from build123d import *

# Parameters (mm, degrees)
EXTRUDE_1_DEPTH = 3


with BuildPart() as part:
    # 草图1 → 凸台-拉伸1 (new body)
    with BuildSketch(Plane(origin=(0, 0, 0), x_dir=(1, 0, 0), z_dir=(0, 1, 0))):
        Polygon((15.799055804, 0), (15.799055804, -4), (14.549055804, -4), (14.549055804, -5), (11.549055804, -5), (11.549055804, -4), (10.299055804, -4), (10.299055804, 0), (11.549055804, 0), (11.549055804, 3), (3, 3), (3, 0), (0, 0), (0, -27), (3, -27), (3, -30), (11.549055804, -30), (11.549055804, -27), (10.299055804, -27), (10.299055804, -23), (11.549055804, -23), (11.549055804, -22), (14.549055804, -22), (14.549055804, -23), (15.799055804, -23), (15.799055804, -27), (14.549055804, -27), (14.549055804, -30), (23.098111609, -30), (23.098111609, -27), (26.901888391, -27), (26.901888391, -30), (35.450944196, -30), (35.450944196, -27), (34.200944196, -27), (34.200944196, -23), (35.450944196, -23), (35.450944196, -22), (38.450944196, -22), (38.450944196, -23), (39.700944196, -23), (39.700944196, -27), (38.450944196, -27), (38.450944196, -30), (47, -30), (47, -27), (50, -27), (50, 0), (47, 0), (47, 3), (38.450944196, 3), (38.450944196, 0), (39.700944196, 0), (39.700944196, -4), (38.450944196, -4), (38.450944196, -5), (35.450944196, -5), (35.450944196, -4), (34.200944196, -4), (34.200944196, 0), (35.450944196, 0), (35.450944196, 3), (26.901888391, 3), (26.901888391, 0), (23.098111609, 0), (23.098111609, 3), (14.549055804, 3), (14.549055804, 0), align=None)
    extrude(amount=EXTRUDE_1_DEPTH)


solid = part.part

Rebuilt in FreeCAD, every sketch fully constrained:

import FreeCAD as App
import Part
import Sketcher
from FreeCAD import Vector
Q = App.Units.Quantity

doc = App.newDocument("Part")
body = doc.addObject("PartDesign::Body", "Body")

# Sketch on XZ plane
sketch1 = doc.addObject("Sketcher::SketchObject", "Sketch")
body.addObject(sketch1)
sketch1.AttachmentSupport = (doc.XZ_Plane, [""])
sketch1.MapMode = "FlatFace"
sketch1.addGeometry([
    Part.LineSegment(Vector(15.8, 0, 0), Vector(15.8, 4, 0)),  # 0
    Part.LineSegment(Vector(15.8, 4, 0), Vector(14.5, 4, 0)),  # 1
    Part.LineSegment(Vector(14.5, 4, 0), Vector(14.5, 5, 0)),  # 2
    Part.LineSegment(Vector(14.5, 5, 0), Vector(11.5, 5, 0)),  # 3
    Part.LineSegment(Vector(11.5, 5, 0), Vector(11.5, 4, 0)),  # 4
    Part.LineSegment(Vector(11.5, 4, 0), Vector(10.3, 4, 0)),  # 5
    Part.LineSegment(Vector(10.3, 4, 0), Vector(10.3, 0, 0)),  # 6
    Part.LineSegment(Vector(10.3, 0, 0), Vector(11.5, 0, 0)),  # 7
    Part.LineSegment(Vector(11.5, 0, 0), Vector(11.5, -3, 0)),  # 8
    Part.LineSegment(Vector(11.5, -3, 0), Vector(3, -3, 0)),  # 9
    Part.LineSegment(Vector(3, -3, 0), Vector(3, 0, 0)),  # 10
    Part.LineSegment(Vector(3, 0, 0), Vector(0, 0, 0)),  # 11
    Part.LineSegment(Vector(0, 0, 0), Vector(0, 27, 0)),  # 12
    Part.LineSegment(Vector(0, 27, 0), Vector(3, 27, 0)),  # 13
    Part.LineSegment(Vector(3, 27, 0), Vector(3, 30, 0)),  # 14
    Part.LineSegment(Vector(3, 30, 0), Vector(11.5, 30, 0)),  # 15
    Part.LineSegment(Vector(11.5, 30, 0), Vector(11.5, 27, 0)),  # 16
    Part.LineSegment(Vector(11.5, 27, 0), Vector(10.3, 27, 0)),  # 17
    Part.LineSegment(Vector(10.3, 27, 0), Vector(10.3, 23, 0)),  # 18
    Part.LineSegment(Vector(10.3, 23, 0), Vector(11.5, 23, 0)),  # 19
    Part.LineSegment(Vector(11.5, 23, 0), Vector(11.5, 22, 0)),  # 20
    Part.LineSegment(Vector(11.5, 22, 0), Vector(14.5, 22, 0)),  # 21
    Part.LineSegment(Vector(14.5, 22, 0), Vector(14.5, 23, 0)),  # 22
    Part.LineSegment(Vector(14.5, 23, 0), Vector(15.8, 23, 0)),  # 23
    Part.LineSegment(Vector(15.8, 23, 0), Vector(15.8, 27, 0)),  # 24
    Part.LineSegment(Vector(15.8, 27, 0), Vector(14.5, 27, 0)),  # 25
    Part.LineSegment(Vector(14.5, 27, 0), Vector(14.5, 30, 0)),  # 26
    Part.LineSegment(Vector(14.5, 30, 0), Vector(23.1, 30, 0)),  # 27
    Part.LineSegment(Vector(23.1, 30, 0), Vector(23.1, 27, 0)),  # 28
    Part.LineSegment(Vector(23.1, 27, 0), Vector(26.9, 27, 0)),  # 29
    Part.LineSegment(Vector(26.9, 27, 0), Vector(26.9, 30, 0)),  # 30
    Part.LineSegment(Vector(26.9, 30, 0), Vector(35.5, 30, 0)),  # 31
    Part.LineSegment(Vector(35.5, 30, 0), Vector(35.5, 27, 0)),  # 32
    Part.LineSegment(Vector(35.5, 27, 0), Vector(34.2, 27, 0)),  # 33
    Part.LineSegment(Vector(34.2, 27, 0), Vector(34.2, 23, 0)),  # 34
    Part.LineSegment(Vector(34.2, 23, 0), Vector(35.5, 23, 0)),  # 35
    Part.LineSegment(Vector(35.5, 23, 0), Vector(35.5, 22, 0)),  # 36
    Part.LineSegment(Vector(35.5, 22, 0), Vector(38.5, 22, 0)),  # 37
    Part.LineSegment(Vector(38.5, 22, 0), Vector(38.5, 23, 0)),  # 38
    Part.LineSegment(Vector(38.5, 23, 0), Vector(39.7, 23, 0)),  # 39
    Part.LineSegment(Vector(39.7, 23, 0), Vector(39.7, 27, 0)),  # 40
    Part.LineSegment(Vector(39.7, 27, 0), Vector(38.5, 27, 0)),  # 41
    Part.LineSegment(Vector(38.5, 27, 0), Vector(38.5, 30, 0)),  # 42
    Part.LineSegment(Vector(38.5, 30, 0), Vector(47, 30, 0)),  # 43
    Part.LineSegment(Vector(47, 30, 0), Vector(47, 27, 0)),  # 44
    Part.LineSegment(Vector(47, 27, 0), Vector(50, 27, 0)),  # 45
    Part.LineSegment(Vector(50, 27, 0), Vector(50, 0, 0)),  # 46
    Part.LineSegment(Vector(50, 0, 0), Vector(47, 0, 0)),  # 47
    Part.LineSegment(Vector(47, 0, 0), Vector(47, -3, 0)),  # 48
    Part.LineSegment(Vector(47, -3, 0), Vector(38.5, -3, 0)),  # 49
    Part.LineSegment(Vector(38.5, -3, 0), Vector(38.5, 0, 0)),  # 50
    Part.LineSegment(Vector(38.5, 0, 0), Vector(39.7, 0, 0)),  # 51
    Part.LineSegment(Vector(39.7, 0, 0), Vector(39.7, 4, 0)),  # 52
    Part.LineSegment(Vector(39.7, 4, 0), Vector(38.5, 4, 0)),  # 53
    Part.LineSegment(Vector(38.5, 4, 0), Vector(38.5, 5, 0)),  # 54
    Part.LineSegment(Vector(38.5, 5, 0), Vector(35.5, 5, 0)),  # 55
    Part.LineSegment(Vector(35.5, 5, 0), Vector(35.5, 4, 0)),  # 56
    Part.LineSegment(Vector(35.5, 4, 0), Vector(34.2, 4, 0)),  # 57
    Part.LineSegment(Vector(34.2, 4, 0), Vector(34.2, 0, 0)),  # 58
    Part.LineSegment(Vector(34.2, 0, 0), Vector(35.5, 0, 0)),  # 59
    Part.LineSegment(Vector(35.5, 0, 0), Vector(35.5, -3, 0)),  # 60
    Part.LineSegment(Vector(35.5, -3, 0), Vector(26.9, -3, 0)),  # 61
    Part.LineSegment(Vector(26.9, -3, 0), Vector(26.9, 0, 0)),  # 62
    Part.LineSegment(Vector(26.9, 0, 0), Vector(23.1, 0, 0)),  # 63
    Part.LineSegment(Vector(23.1, 0, 0), Vector(23.1, -3, 0)),  # 64
    Part.LineSegment(Vector(23.1, -3, 0), Vector(14.5, -3, 0)),  # 65
    Part.LineSegment(Vector(14.5, -3, 0), Vector(14.5, 0, 0)),  # 66
    Part.LineSegment(Vector(14.5, 0, 0), Vector(15.8, 0, 0)),  # 67
], False)
sketch1.addConstraint([
    Sketcher.Constraint("Coincident", 0, 2, 1, 1),
    Sketcher.Constraint("Coincident", 1, 2, 2, 1),
    Sketcher.Constraint("Coincident", 2, 2, 3, 1),
    Sketcher.Constraint("Coincident", 3, 2, 4, 1),
    Sketcher.Constraint("Coincident", 4, 2, 5, 1),
    Sketcher.Constraint("Coincident", 5, 2, 6, 1),
    Sketcher.Constraint("Coincident", 6, 2, 7, 1),
    Sketcher.Constraint("Coincident", 7, 2, 8, 1),
    Sketcher.Constraint("Coincident", 8, 2, 9, 1),
    Sketcher.Constraint("Coincident", 9, 2, 10, 1),
    Sketcher.Constraint("Coincident", 10, 2, 11, 1),
    Sketcher.Constraint("Coincident", 11, 2, 12, 1),
    Sketcher.Constraint("Coincident", 12, 2, 13, 1),
    Sketcher.Constraint("Coincident", 13, 2, 14, 1),
    Sketcher.Constraint("Coincident", 14, 2, 15, 1),
    Sketcher.Constraint("Coincident", 15, 2, 16, 1),
    Sketcher.Constraint("Coincident", 16, 2, 17, 1),
    Sketcher.Constraint("Coincident", 17, 2, 18, 1),
    Sketcher.Constraint("Coincident", 18, 2, 19, 1),
    Sketcher.Constraint("Coincident", 19, 2, 20, 1),
    Sketcher.Constraint("Coincident", 20, 2, 21, 1),
    Sketcher.Constraint("Coincident", 21, 2, 22, 1),
    Sketcher.Constraint("Coincident", 22, 2, 23, 1),
    Sketcher.Constraint("Coincident", 23, 2, 24, 1),
    Sketcher.Constraint("Coincident", 24, 2, 25, 1),
    Sketcher.Constraint("Coincident", 25, 2, 26, 1),
    Sketcher.Constraint("Coincident", 26, 2, 27, 1),
    Sketcher.Constraint("Coincident", 27, 2, 28, 1),
    Sketcher.Constraint("Coincident", 28, 2, 29, 1),
    Sketcher.Constraint("Coincident", 29, 2, 30, 1),
    Sketcher.Constraint("Coincident", 30, 2, 31, 1),
    Sketcher.Constraint("Coincident", 31, 2, 32, 1),
    Sketcher.Constraint("Coincident", 32, 2, 33, 1),
    Sketcher.Constraint("Coincident", 33, 2, 34, 1),
    Sketcher.Constraint("Coincident", 34, 2, 35, 1),
    Sketcher.Constraint("Coincident", 35, 2, 36, 1),
    Sketcher.Constraint("Coincident", 36, 2, 37, 1),
    Sketcher.Constraint("Coincident", 37, 2, 38, 1),
    Sketcher.Constraint("Coincident", 38, 2, 39, 1),
    Sketcher.Constraint("Coincident", 39, 2, 40, 1),
    Sketcher.Constraint("Coincident", 40, 2, 41, 1),
    Sketcher.Constraint("Coincident", 41, 2, 42, 1),
    Sketcher.Constraint("Coincident", 42, 2, 43, 1),
    Sketcher.Constraint("Coincident", 43, 2, 44, 1),
    Sketcher.Constraint("Coincident", 44, 2, 45, 1),
    Sketcher.Constraint("Coincident", 45, 2, 46, 1),
    Sketcher.Constraint("Coincident", 46, 2, 47, 1),
    Sketcher.Constraint("Coincident", 47, 2, 48, 1),
    Sketcher.Constraint("Coincident", 48, 2, 49, 1),
    Sketcher.Constraint("Coincident", 49, 2, 50, 1),
    Sketcher.Constraint("Coincident", 50, 2, 51, 1),
    Sketcher.Constraint("Coincident", 51, 2, 52, 1),
    Sketcher.Constraint("Coincident", 52, 2, 53, 1),
    Sketcher.Constraint("Coincident", 53, 2, 54, 1),
    Sketcher.Constraint("Coincident", 54, 2, 55, 1),
    Sketcher.Constraint("Coincident", 55, 2, 56, 1),
    Sketcher.Constraint("Coincident", 56, 2, 57, 1),
    Sketcher.Constraint("Coincident", 57, 2, 58, 1),
    Sketcher.Constraint("Coincident", 58, 2, 59, 1),
    Sketcher.Constraint("Coincident", 59, 2, 60, 1),
    Sketcher.Constraint("Coincident", 60, 2, 61, 1),
    Sketcher.Constraint("Coincident", 61, 2, 62, 1),
    Sketcher.Constraint("Coincident", 62, 2, 63, 1),
    Sketcher.Constraint("Coincident", 63, 2, 64, 1),
    Sketcher.Constraint("Coincident", 64, 2, 65, 1),
    Sketcher.Constraint("Coincident", 65, 2, 66, 1),
    Sketcher.Constraint("Coincident", 66, 2, 67, 1),
    Sketcher.Constraint("Coincident", 67, 2, 0, 1),
    Sketcher.Constraint("Vertical", 0),
    Sketcher.Constraint("Horizontal", 1),
    Sketcher.Constraint("Vertical", 2),
    Sketcher.Constraint("Horizontal", 3),
    Sketcher.Constraint("Vertical", 4),
    Sketcher.Constraint("Horizontal", 5),
    Sketcher.Constraint("Vertical", 6),
    Sketcher.Constraint("Horizontal", 7),
    Sketcher.Constraint("Vertical", 8),
    Sketcher.Constraint("Horizontal", 9),
    Sketcher.Constraint("Vertical", 10),
    Sketcher.Constraint("Horizontal", 11),
    Sketcher.Constraint("Vertical", 12),
    Sketcher.Constraint("Horizontal", 13),
    Sketcher.Constraint("Vertical", 14),
    Sketcher.Constraint("Horizontal", 15),
    Sketcher.Constraint("Vertical", 16),
    Sketcher.Constraint("Horizontal", 17),
    Sketcher.Constraint("Vertical", 18),
    Sketcher.Constraint("Horizontal", 19),
    Sketcher.Constraint("Vertical", 20),
    Sketcher.Constraint("Horizontal", 21),
    Sketcher.Constraint("Vertical", 22),
    Sketcher.Constraint("Horizontal", 23),
    Sketcher.Constraint("Vertical", 24),
    Sketcher.Constraint("Horizontal", 25),
    Sketcher.Constraint("Vertical", 26),
    Sketcher.Constraint("Horizontal", 27),
    Sketcher.Constraint("Vertical", 28),
    Sketcher.Constraint("Horizontal", 29),
    Sketcher.Constraint("Vertical", 30),
    Sketcher.Constraint("Horizontal", 31),
    Sketcher.Constraint("Vertical", 32),
    Sketcher.Constraint("Horizontal", 33),
    Sketcher.Constraint("Vertical", 34),
    Sketcher.Constraint("Horizontal", 35),
    Sketcher.Constraint("Vertical", 36),
    Sketcher.Constraint("Horizontal", 37),
    Sketcher.Constraint("Vertical", 38),
    Sketcher.Constraint("Horizontal", 39),
    Sketcher.Constraint("Vertical", 40),
    Sketcher.Constraint("Horizontal", 41),
    Sketcher.Constraint("Vertical", 42),
    Sketcher.Constraint("Horizontal", 43),
    Sketcher.Constraint("Vertical", 44),
    Sketcher.Constraint("Horizontal", 45),
    Sketcher.Constraint("Vertical", 46),
    Sketcher.Constraint("Horizontal", 47),
    Sketcher.Constraint("Vertical", 48),
    Sketcher.Constraint("Horizontal", 49),
    Sketcher.Constraint("Vertical", 50),
    Sketcher.Constraint("Horizontal", 51),
    Sketcher.Constraint("Vertical", 52),
    Sketcher.Constraint("Horizontal", 53),
    Sketcher.Constraint("Vertical", 54),
    Sketcher.Constraint("Horizontal", 55),
    Sketcher.Constraint("Vertical", 56),
    Sketcher.Constraint("Horizontal", 57),
    Sketcher.Constraint("Vertical", 58),
    Sketcher.Constraint("Horizontal", 59),
    Sketcher.Constraint("Vertical", 60),
    Sketcher.Constraint("Horizontal", 61),
    Sketcher.Constraint("Vertical", 62),
    Sketcher.Constraint("Horizontal", 63),
    Sketcher.Constraint("Vertical", 64),
    Sketcher.Constraint("Horizontal", 65),
    Sketcher.Constraint("Vertical", 66),
    Sketcher.Constraint("Horizontal", 67),
    Sketcher.Constraint("Coincident", 11, 2, -1, 1),
    Sketcher.Constraint("PointOnObject", 6, 2, -1),
    Sketcher.Constraint("PointOnObject", 46, 2, -1),
    Sketcher.Constraint("PointOnObject", 50, 2, -1),
    Sketcher.Constraint("PointOnObject", 58, 2, -1),
    Sketcher.Constraint("PointOnObject", 62, 2, -1),
    Sketcher.Constraint("PointOnObject", 66, 2, -1),
    Sketcher.Constraint("Horizontal", 1, 2, 4, 2),
    Sketcher.Constraint("Horizontal", 13, 2, 16, 2),
    Sketcher.Constraint("Horizontal", 19, 2, 22, 2),
    Sketcher.Constraint("Horizontal", 17, 2, 24, 2),
    Sketcher.Constraint("Horizontal", 15, 2, 26, 2),
    Sketcher.Constraint("Horizontal", 25, 2, 28, 2),
    Sketcher.Constraint("Horizontal", 27, 2, 30, 2),
    Sketcher.Constraint("Horizontal", 29, 2, 32, 2),
    Sketcher.Constraint("Horizontal", 23, 2, 34, 2),
    Sketcher.Constraint("Horizontal", 21, 2, 36, 2),
    Sketcher.Constraint("Horizontal", 35, 2, 38, 2),
    Sketcher.Constraint("Horizontal", 33, 2, 40, 2),
    Sketcher.Constraint("Horizontal", 31, 2, 42, 2),
    Sketcher.Constraint("Horizontal", 41, 2, 44, 2),
    Sketcher.Constraint("Horizontal", 9, 2, 48, 2),
    Sketcher.Constraint("Horizontal", 5, 2, 52, 2),
    Sketcher.Constraint("Horizontal", 3, 2, 54, 2),
    Sketcher.Constraint("Horizontal", 53, 2, 56, 2),
    Sketcher.Constraint("Horizontal", 49, 2, 60, 2),
    Sketcher.Constraint("Horizontal", 61, 2, 64, 2),
    Sketcher.Constraint("Vertical", 4, 2, 7, 2),
    Sketcher.Constraint("Vertical", 10, 2, 13, 2),
    Sketcher.Constraint("Vertical", 8, 2, 15, 2),
    Sketcher.Constraint("Vertical", 6, 2, 17, 2),
    Sketcher.Constraint("Vertical", 16, 2, 19, 2),
    Sketcher.Constraint("Vertical", 2, 2, 21, 2),
    Sketcher.Constraint("Vertical", 0, 2, 23, 2),
    Sketcher.Constraint("Vertical", 22, 2, 25, 2),
    Sketcher.Constraint("Vertical", 32, 2, 35, 2),
    Sketcher.Constraint("Vertical", 38, 2, 41, 2),
    Sketcher.Constraint("Vertical", 44, 2, 47, 2),
    Sketcher.Constraint("Vertical", 42, 2, 49, 2),
    Sketcher.Constraint("Vertical", 40, 2, 51, 2),
    Sketcher.Constraint("Vertical", 50, 2, 53, 2),
    Sketcher.Constraint("Vertical", 36, 2, 55, 2),
    Sketcher.Constraint("Vertical", 34, 2, 57, 2),
    Sketcher.Constraint("Vertical", 56, 2, 59, 2),
    Sketcher.Constraint("Vertical", 30, 2, 61, 2),
    Sketcher.Constraint("Vertical", 28, 2, 63, 2),
    Sketcher.Constraint("Vertical", 26, 2, 65, 2),
    Sketcher.Constraint("Equal", 1, 5),
    Sketcher.Constraint("Equal", 3, 11),
    Sketcher.Constraint("Equal", 15, 27),
    Sketcher.Constraint("Equal", 27, 31),
    Sketcher.Constraint("Equal", 25, 33),
    Sketcher.Constraint("Equal", 21, 37),
    Sketcher.Constraint("Equal", 35, 39),
    Sketcher.Constraint("Equal", 31, 43),
    Sketcher.Constraint("Equal", 37, 45),
    Sketcher.Constraint("Equal", 55, 8),
    Sketcher.Constraint("Equal", 10, 14),
    Sketcher.Constraint("Equal", 6, 18),
    Sketcher.Constraint("Equal", 4, 20),
    Sketcher.Constraint("DistanceX", 3, 2, 3, 1, Q("3 mm")),
    Sketcher.Constraint("DistanceY", 0, 1, 0, 2, Q("4 mm")),
    Sketcher.Constraint("DistanceY", 2, 1, 2, 2, Q("1 mm")),
    Sketcher.Constraint("DistanceY", 12, 1, 12, 2, Q("27 mm")),
    Sketcher.Constraint("DistanceX", -1, 1, 43, 2, Q("47 mm")),
    Sketcher.Constraint("DistanceX", 1, 2, 1, 1, Q("1.25 mm")),
    Sketcher.Constraint("DistanceX", 9, 2, 9, 1, Q("8.549056 mm")),
])
pad1 = doc.addObject("PartDesign::Pad", "Pad")
body.addObject(pad1)
pad1.Profile = sketch1
pad1.Length = 3
pad1.Reversed = True

doc.recompute()
